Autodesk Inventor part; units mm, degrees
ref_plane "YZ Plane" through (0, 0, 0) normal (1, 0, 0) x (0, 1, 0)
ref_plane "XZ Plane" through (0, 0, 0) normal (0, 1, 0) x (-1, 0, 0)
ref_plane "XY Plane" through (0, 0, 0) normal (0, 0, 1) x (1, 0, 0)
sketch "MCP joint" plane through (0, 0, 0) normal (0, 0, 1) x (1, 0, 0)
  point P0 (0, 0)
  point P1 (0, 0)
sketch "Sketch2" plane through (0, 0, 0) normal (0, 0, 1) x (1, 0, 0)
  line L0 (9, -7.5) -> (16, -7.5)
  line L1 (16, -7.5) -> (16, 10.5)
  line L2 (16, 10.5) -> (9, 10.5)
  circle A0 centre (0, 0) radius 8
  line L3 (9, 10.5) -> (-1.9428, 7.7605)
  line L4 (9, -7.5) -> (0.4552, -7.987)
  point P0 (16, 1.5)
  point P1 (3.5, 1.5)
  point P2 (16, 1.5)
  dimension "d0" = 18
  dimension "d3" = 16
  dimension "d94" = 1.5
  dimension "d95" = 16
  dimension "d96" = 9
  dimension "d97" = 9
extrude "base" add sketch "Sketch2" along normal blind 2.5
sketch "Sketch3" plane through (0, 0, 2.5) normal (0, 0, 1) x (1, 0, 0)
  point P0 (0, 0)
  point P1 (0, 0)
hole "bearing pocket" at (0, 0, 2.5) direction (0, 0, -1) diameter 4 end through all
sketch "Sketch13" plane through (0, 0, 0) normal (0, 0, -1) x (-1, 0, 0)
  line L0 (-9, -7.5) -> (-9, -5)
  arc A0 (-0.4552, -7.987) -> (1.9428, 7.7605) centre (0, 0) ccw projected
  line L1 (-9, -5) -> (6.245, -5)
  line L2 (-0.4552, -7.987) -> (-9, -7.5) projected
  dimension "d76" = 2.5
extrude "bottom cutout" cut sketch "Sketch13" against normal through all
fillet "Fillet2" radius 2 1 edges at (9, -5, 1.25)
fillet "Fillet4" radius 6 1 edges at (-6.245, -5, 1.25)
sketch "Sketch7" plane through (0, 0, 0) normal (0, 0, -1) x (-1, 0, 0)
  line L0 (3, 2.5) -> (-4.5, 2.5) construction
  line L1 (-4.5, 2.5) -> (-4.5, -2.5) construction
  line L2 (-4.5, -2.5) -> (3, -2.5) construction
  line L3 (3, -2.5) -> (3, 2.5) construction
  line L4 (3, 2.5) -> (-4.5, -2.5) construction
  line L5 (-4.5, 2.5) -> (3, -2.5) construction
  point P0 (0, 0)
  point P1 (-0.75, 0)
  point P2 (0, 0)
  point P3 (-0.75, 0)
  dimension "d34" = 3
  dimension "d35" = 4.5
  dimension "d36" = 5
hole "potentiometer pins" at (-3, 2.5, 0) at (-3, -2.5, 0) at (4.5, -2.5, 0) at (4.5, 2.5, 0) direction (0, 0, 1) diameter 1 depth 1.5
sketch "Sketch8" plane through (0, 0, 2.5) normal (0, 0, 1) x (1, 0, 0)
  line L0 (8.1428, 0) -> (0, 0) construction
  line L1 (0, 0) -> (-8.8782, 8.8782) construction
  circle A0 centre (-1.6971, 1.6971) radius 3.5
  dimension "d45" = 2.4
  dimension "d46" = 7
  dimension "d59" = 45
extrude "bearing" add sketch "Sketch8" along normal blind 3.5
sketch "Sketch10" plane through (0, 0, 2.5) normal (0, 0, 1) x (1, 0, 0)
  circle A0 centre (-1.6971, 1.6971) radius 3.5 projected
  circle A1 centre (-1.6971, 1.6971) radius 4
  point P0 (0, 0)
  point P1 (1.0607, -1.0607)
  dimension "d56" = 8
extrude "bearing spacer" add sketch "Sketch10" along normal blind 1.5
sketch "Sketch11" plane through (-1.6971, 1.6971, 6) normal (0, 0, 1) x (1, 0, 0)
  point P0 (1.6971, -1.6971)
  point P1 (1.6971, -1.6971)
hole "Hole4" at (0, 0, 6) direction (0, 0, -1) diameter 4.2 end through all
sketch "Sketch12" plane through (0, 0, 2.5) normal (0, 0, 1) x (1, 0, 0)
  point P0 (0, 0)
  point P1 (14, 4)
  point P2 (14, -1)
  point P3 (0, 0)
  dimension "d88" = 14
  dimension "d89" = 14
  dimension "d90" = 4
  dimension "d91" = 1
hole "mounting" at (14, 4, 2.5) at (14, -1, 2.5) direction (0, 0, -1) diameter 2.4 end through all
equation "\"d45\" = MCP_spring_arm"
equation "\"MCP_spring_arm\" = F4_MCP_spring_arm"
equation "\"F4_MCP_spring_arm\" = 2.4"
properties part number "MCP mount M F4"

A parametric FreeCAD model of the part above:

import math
import FreeCAD as App
import Part
import Sketcher

V = App.Vector


def edges_at(feature, points):
    """Names of the edges that pass closest to the given points."""
    edges = feature.Shape.Edges
    near = lambda p: min(range(len(edges)), key=lambda i: edges[i].distToShape(Part.Vertex(*p))[0])
    return sorted({f"Edge{near(p) + 1}" for p in points})

doc = App.newDocument("Part")
params = doc.addObject("Spreadsheet::Sheet", "Params")
for row, (alias, value) in enumerate([
    ("sketch1_radius", "8 mm"),
    ("sketch1_height", "18 mm"),
    ("pad1_length", "2.5 mm"),
    ("sketch2_diameter", "4 mm"),
    ("hole_diameter", "4 mm"),
    ("sketch3_height", "2.5 mm"),
    ("sketch3_radius", "8 mm"),
    ("fillet_radius", "2 mm"),
    ("fillet2_radius", "6 mm"),
    ("sketch4_diameter", "1 mm"),
    ("hole2_diameter", "1 mm"),
    ("hole2_depth", "1.5 mm"),
    ("sketch5_diameter", "7 mm"),
    ("pad2_length", "3.5 mm"),
    ("sketch6_diameter", "8 mm"),
    ("sketch6_diameter2", "7 mm"),
    ("pad3_length", "1.5 mm"),
    ("sketch7_diameter", "4.2 mm"),
    ("hole3_diameter", "4.2 mm"),
    ("sketch8_diameter", "2.4 mm"),
    ("hole4_diameter", "2.4 mm"),
], start=1):
    params.set(f"A{row}", alias)
    params.set(f"B{row}", "=" + value)
    params.setAlias(f"B{row}", alias)

body = doc.addObject("PartDesign::Body", "Body")

# Sketch on XY plane
sketch1 = body.newObject("Sketcher::SketchObject", "Sketch")
sketch1.AttachmentSupport = (doc.getObject("XY_Plane"), [""])
sketch1.MapMode = "FlatFace"
sketch1.addGeometry(Part.LineSegment(V(0, -8, 0), V(9, -8, 0)), False)
sketch1.addGeometry(Part.LineSegment(V(9, -8, 0), V(16, -8, 0)), False)
sketch1.addGeometry(Part.LineSegment(V(16, -8, 0), V(16, 10, 0)), False)
sketch1.addGeometry(Part.LineSegment(V(16, 10, 0), V(9, 10, 0)), False)
sketch1.addGeometry(Part.LineSegment(V(9, 10, 0), V(-2, 8, 0)), False)
sketch1.addGeometry(Part.ArcOfCircle(Part.Circle(V(0, 0, 0), V(0, 0, 1), 8), math.radians(104), math.radians(273)), False)
sketch1.addConstraint(Sketcher.Constraint("Coincident", 0, 2, 1, 1))
sketch1.addConstraint(Sketcher.Constraint("Coincident", 1, 2, 2, 1))
sketch1.addConstraint(Sketcher.Constraint("Coincident", 2, 2, 3, 1))
sketch1.addConstraint(Sketcher.Constraint("Coincident", 3, 2, 4, 1))
sketch1.addConstraint(Sketcher.Constraint("Tangent", 4, 2, 5, 1))
sketch1.addConstraint(Sketcher.Constraint("Tangent", 5, 2, 0, 1))
sketch1.addConstraint(Sketcher.Constraint("Horizontal", 1))
sketch1.addConstraint(Sketcher.Constraint("Vertical", 2))
sketch1.addConstraint(Sketcher.Constraint("Horizontal", 3))
sketch1.addConstraint(Sketcher.Constraint("Coincident", 5, 3, -1, 1))
sketch1.addConstraint(Sketcher.Constraint("Vertical", 0, 2, 3, 2))
sketch1.addConstraint(Sketcher.Constraint("Radius", 5, 8.0))
sketch1.addConstraint(Sketcher.Constraint("DistanceY", 2, 1, 2, 2, 18.0))
sketch1.addConstraint(Sketcher.Constraint("DistanceX", -1, 1, 0, 2, 9.0))
sketch1.addConstraint(Sketcher.Constraint("DistanceX", -1, 1, 1, 2, 16.0))
sketch1.addConstraint(Sketcher.Constraint("DistanceY", 0, 2, -1, 1, 7.5))
sketch1.setExpression("Constraints[11]", "Params.sketch1_radius")
sketch1.setExpression("Constraints[12]", "Params.sketch1_height")
pad1 = body.newObject("PartDesign::Pad", "Pad")
pad1.Profile = sketch1
pad1.setExpression("Length", "Params.pad1_length")

# Sketch on XY plane
sketch2 = body.newObject("Sketcher::SketchObject", "Sketch001")
sketch2.AttachmentSupport = (doc.getObject("XY_Plane"), [""])
sketch2.MapMode = "FlatFace"
sketch2.AttachmentOffset = App.Placement(V(0, 0, 2.5), App.Rotation())
sketch2.addGeometry(Part.Circle(V(0, 0, 0), V(0, 0, 1), 2), False)
sketch2.addConstraint(Sketcher.Constraint("Coincident", 0, 3, -1, 1))
sketch2.addConstraint(Sketcher.Constraint("Diameter", 0, 4.0))
sketch2.setExpression("Constraints[1]", "Params.sketch2_diameter")
doc.recompute()
hole = body.newObject("PartDesign::Hole", "Hole")
hole.Profile = sketch2
hole.ThreadType = "None"
hole.setExpression("Diameter", "Params.hole_diameter")
hole.DepthType = "ThroughAll"

# Sketch on XY plane
sketch3 = body.newObject("Sketcher::SketchObject", "Sketch002")
sketch3.AttachmentSupport = (doc.getObject("XY_Plane"), [""])
sketch3.MapMode = "FlatFace"
sketch3.addGeometry(Part.LineSegment(V(9, -5, 0), V(9, -7.5, 0)), False)
sketch3.addGeometry(Part.LineSegment(V(9, -7.5, 0), V(0.5, -8, 0)), False)
sketch3.addGeometry(Part.ArcOfCircle(Part.Circle(V(0, 0, 0), V(0, 0, 1), 8), math.radians(-141), math.radians(-87)), False)
sketch3.addGeometry(Part.LineSegment(V(-6.2, -5, 0), V(9, -5, 0)), False)
sketch3.addConstraint(Sketcher.Constraint("Coincident", 0, 2, 1, 1))
sketch3.addConstraint(Sketcher.Constraint("Tangent", 1, 2, 2, 2))
sketch3.addConstraint(Sketcher.Constraint("Coincident", 2, 1, 3, 1))
sketch3.addConstraint(Sketcher.Constraint("Coincident", 3, 2, 0, 1))
sketch3.addConstraint(Sketcher.Constraint("Vertical", 0))
sketch3.addConstraint(Sketcher.Constraint("Horizontal", 3))
sketch3.addConstraint(Sketcher.Constraint("Coincident", 2, 3, -1, 1))
sketch3.addConstraint(Sketcher.Constraint("DistanceY", 0, 2, 0, 1, 2.5))
sketch3.addConstraint(Sketcher.Constraint("Radius", 2, 8.0))
sketch3.addConstraint(Sketcher.Constraint("DistanceX", -1, 1, 0, 2, 9.0))
sketch3.addConstraint(Sketcher.Constraint("DistanceY", 2, 1, -1, 1, 5.0))
sketch3.setExpression("Constraints[7]", "Params.sketch3_height")
sketch3.setExpression("Constraints[8]", "Params.sketch3_radius")
pocket1 = body.newObject("PartDesign::Pocket", "Pocket")
pocket1.Profile = sketch3
pocket1.Type = "ThroughAll"
pocket1.Reversed = True
doc.recompute()

fillet = body.newObject("PartDesign::Fillet", "Fillet")
fillet.Base = (pocket1, edges_at(pocket1, [(9, -5, 1.25)]))
fillet.setExpression("Radius", "Params.fillet_radius")
doc.recompute()

fillet2 = body.newObject("PartDesign::Fillet", "Fillet001")
fillet2.Base = (fillet, edges_at(fillet, [(-6.245, -5, 1.25)]))
fillet2.setExpression("Radius", "Params.fillet2_radius")

# Sketch on XY plane
sketch4 = body.newObject("Sketcher::SketchObject", "Sketch003")
sketch4.AttachmentSupport = (doc.getObject("XY_Plane"), [""])
sketch4.MapMode = "FlatFace"
sketch4.addGeometry(Part.Circle(V(-3, 2.5, 0), V(0, 0, 1), 0.5), False)
sketch4.addGeometry(Part.Circle(V(-3, -2.5, 0), V(0, 0, 1), 0.5), False)
sketch4.addGeometry(Part.Circle(V(4.5, -2.5, 0), V(0, 0, 1), 0.5), False)
sketch4.addGeometry(Part.Circle(V(4.5, 2.5, 0), V(0, 0, 1), 0.5), False)
sketch4.addConstraint(Sketcher.Constraint("Equal", 0, 1))
sketch4.addConstraint(Sketcher.Constraint("Equal", 1, 2))
sketch4.addConstraint(Sketcher.Constraint("Equal", 2, 3))
sketch4.addConstraint(Sketcher.Constraint("Symmetric", 0, 3, 1, 3, -1))
sketch4.addConstraint(Sketcher.Constraint("Symmetric", 2, 3, 3, 3, -1))
sketch4.addConstraint(Sketcher.Constraint("Horizontal", 1, 3, 2, 3))
sketch4.addConstraint(Sketcher.Constraint("Diameter", 0, 1.0))
sketch4.addConstraint(Sketcher.Constraint("DistanceX", 0, 3, -1, 1, 3.0))
sketch4.addConstraint(Sketcher.Constraint("DistanceY", 1, 3, 0, 3, 5.0))
sketch4.addConstraint(Sketcher.Constraint("DistanceX", -1, 1, 2, 3, 4.5))
sketch4.setExpression("Constraints[6]", "Params.sketch4_diameter")
doc.recompute()
hole2 = body.newObject("PartDesign::Hole", "Hole001")
hole2.Profile = sketch4
hole2.ThreadType = "None"
hole2.setExpression("Diameter", "Params.hole2_diameter")
hole2.DepthType = "Dimension"
hole2.setExpression("Depth", "Params.hole2_depth")
hole2.DrillPoint = "Flat"
hole2.Reversed = True

# Sketch on XY plane
sketch5 = body.newObject("Sketcher::SketchObject", "Sketch004")
sketch5.AttachmentSupport = (doc.getObject("XY_Plane"), [""])
sketch5.MapMode = "FlatFace"
sketch5.AttachmentOffset = App.Placement(V(0, 0, 2.5), App.Rotation())
sketch5.addGeometry(Part.Circle(V(-1.7, 1.7, 0), V(0, 0, 1), 3.5), False)
sketch5.addConstraint(Sketcher.Constraint("Diameter", 0, 7.0))
sketch5.addConstraint(Sketcher.Constraint("DistanceX", 0, 3, -1, 1, 1.697))
sketch5.addConstraint(Sketcher.Constraint("DistanceY", -1, 1, 0, 3, 1.697))
sketch5.setExpression("Constraints[0]", "Params.sketch5_diameter")
pad2 = body.newObject("PartDesign::Pad", "Pad001")
pad2.Profile = sketch5
pad2.setExpression("Length", "Params.pad2_length")

# Sketch on XY plane
sketch6 = body.newObject("Sketcher::SketchObject", "Sketch005")
sketch6.AttachmentSupport = (doc.getObject("XY_Plane"), [""])
sketch6.MapMode = "FlatFace"
sketch6.AttachmentOffset = App.Placement(V(0, 0, 2.5), App.Rotation())
sketch6.addGeometry(Part.Circle(V(-1.7, 1.7, 0), V(0, 0, 1), 4), False)
sketch6.addGeometry(Part.Circle(V(-1.7, 1.7, 0), V(0, 0, 1), 3.5), False)
sketch6.addConstraint(Sketcher.Constraint("Coincident", 1, 3, 0, 3))
sketch6.addConstraint(Sketcher.Constraint("Diameter", 0, 8.0))
sketch6.addConstraint(Sketcher.Constraint("Diameter", 1, 7.0))
sketch6.addConstraint(Sketcher.Constraint("DistanceX", 0, 3, -1, 1, 1.697))
sketch6.addConstraint(Sketcher.Constraint("DistanceY", -1, 1, 0, 3, 1.697))
sketch6.setExpression("Constraints[1]", "Params.sketch6_diameter")
sketch6.setExpression("Constraints[2]", "Params.sketch6_diameter2")
pad3 = body.newObject("PartDesign::Pad", "Pad002")
pad3.Profile = sketch6
pad3.setExpression("Length", "Params.pad3_length")

# Sketch on XY plane
sketch7 = body.newObject("Sketcher::SketchObject", "Sketch006")
sketch7.AttachmentSupport = (doc.getObject("XY_Plane"), [""])
sketch7.MapMode = "FlatFace"
sketch7.AttachmentOffset = App.Placement(V(0, 0, 6), App.Rotation())
sketch7.addGeometry(Part.Circle(V(0, 0, 0), V(0, 0, 1), 2.1), False)
sketch7.addConstraint(Sketcher.Constraint("Coincident", 0, 3, -1, 1))
sketch7.addConstraint(Sketcher.Constraint("Diameter", 0, 4.2))
sketch7.setExpression("Constraints[1]", "Params.sketch7_diameter")
doc.recompute()
hole3 = body.newObject("PartDesign::Hole", "Hole002")
hole3.Profile = sketch7
hole3.ThreadType = "None"
hole3.setExpression("Diameter", "Params.hole3_diameter")
hole3.DepthType = "ThroughAll"

# Sketch on XY plane
sketch8 = body.newObject("Sketcher::SketchObject", "Sketch007")
sketch8.AttachmentSupport = (doc.getObject("XY_Plane"), [""])
sketch8.MapMode = "FlatFace"
sketch8.AttachmentOffset = App.Placement(V(0, 0, 2.5), App.Rotation())
sketch8.addGeometry(Part.Circle(V(14, 4, 0), V(0, 0, 1), 1.2), False)
sketch8.addGeometry(Part.Circle(V(14, -1, 0), V(0, 0, 1), 1.2), False)
sketch8.addConstraint(Sketcher.Constraint("Equal", 0, 1))
sketch8.addConstraint(Sketcher.Constraint("Vertical", 0, 3, 1, 3))
sketch8.addConstraint(Sketcher.Constraint("Diameter", 0, 2.4))
sketch8.addConstraint(Sketcher.Constraint("DistanceX", -1, 1, 0, 3, 14.0))
sketch8.addConstraint(Sketcher.Constraint("DistanceY", -1, 1, 0, 3, 4.0))
sketch8.addConstraint(Sketcher.Constraint("DistanceY", 1, 3, -1, 1, 1.0))
sketch8.setExpression("Constraints[2]", "Params.sketch8_diameter")
doc.recompute()
hole4 = body.newObject("PartDesign::Hole", "Hole003")
hole4.Profile = sketch8
hole4.ThreadType = "None"
hole4.setExpression("Diameter", "Params.hole4_diameter")
hole4.DepthType = "ThroughAll"

doc.recompute()
